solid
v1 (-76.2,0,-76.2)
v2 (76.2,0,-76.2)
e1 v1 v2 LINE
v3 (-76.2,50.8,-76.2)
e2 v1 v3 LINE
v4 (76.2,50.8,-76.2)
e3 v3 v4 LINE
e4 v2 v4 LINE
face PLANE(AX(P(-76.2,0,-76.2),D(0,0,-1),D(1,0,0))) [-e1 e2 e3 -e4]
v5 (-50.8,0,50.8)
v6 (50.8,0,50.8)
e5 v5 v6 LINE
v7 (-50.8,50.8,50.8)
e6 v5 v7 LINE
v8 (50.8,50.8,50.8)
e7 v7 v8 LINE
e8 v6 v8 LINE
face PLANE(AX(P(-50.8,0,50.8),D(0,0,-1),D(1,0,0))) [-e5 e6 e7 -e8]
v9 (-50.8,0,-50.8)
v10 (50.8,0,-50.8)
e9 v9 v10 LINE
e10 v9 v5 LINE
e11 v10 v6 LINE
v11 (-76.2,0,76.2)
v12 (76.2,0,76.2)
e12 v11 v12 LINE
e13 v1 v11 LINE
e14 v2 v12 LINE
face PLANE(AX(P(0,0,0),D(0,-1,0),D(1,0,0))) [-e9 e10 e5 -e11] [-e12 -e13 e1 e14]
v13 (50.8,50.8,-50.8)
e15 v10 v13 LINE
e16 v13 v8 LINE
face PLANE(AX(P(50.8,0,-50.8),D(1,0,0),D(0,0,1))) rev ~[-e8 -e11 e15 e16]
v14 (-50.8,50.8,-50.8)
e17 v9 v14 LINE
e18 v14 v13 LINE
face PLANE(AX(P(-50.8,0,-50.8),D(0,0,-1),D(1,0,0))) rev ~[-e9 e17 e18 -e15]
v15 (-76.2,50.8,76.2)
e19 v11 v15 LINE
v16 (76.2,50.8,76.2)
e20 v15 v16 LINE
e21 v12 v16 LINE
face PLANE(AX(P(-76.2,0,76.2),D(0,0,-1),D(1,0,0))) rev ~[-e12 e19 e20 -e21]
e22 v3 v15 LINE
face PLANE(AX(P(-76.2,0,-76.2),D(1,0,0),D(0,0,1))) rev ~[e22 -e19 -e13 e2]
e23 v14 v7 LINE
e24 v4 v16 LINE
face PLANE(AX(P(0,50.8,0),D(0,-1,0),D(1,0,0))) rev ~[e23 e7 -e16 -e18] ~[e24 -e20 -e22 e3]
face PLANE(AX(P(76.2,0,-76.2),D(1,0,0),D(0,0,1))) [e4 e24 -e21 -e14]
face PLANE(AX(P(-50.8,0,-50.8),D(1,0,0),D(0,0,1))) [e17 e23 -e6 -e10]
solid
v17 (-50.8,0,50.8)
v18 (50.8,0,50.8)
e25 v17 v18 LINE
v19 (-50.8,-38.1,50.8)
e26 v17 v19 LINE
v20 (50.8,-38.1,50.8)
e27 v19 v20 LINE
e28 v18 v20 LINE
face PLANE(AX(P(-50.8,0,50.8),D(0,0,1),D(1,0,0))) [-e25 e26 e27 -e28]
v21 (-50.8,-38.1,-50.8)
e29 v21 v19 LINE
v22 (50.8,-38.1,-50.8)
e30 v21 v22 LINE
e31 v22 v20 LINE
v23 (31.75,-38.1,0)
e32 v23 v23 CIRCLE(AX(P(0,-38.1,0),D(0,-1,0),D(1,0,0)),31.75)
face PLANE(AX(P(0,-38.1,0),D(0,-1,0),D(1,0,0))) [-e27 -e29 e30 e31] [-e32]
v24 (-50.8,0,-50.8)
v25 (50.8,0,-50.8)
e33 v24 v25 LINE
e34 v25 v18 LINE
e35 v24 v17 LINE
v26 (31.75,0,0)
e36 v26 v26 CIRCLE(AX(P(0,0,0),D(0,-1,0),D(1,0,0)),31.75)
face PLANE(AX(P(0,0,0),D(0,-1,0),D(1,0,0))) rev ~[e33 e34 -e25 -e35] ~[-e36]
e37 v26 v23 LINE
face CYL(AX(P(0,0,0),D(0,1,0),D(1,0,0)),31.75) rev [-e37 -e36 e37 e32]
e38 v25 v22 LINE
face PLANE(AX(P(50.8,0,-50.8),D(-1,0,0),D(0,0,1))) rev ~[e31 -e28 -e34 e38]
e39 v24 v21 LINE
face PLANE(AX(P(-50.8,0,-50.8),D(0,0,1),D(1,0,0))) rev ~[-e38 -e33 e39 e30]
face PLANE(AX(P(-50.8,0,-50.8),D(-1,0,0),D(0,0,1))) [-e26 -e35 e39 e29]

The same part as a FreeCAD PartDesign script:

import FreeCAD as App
import Part
import Sketcher
from FreeCAD import Vector
Q = App.Units.Quantity


def add_polygon(sketch, points):
    """Adds a closed chain of lines whose ends are joined by coincident constraints."""
    first, n = sketch.GeometryCount, len(points)
    for a, b in zip(points, points[1:] + points[:1]):
        sketch.addGeometry(Part.LineSegment(App.Vector(*a, 0), App.Vector(*b, 0)), False)
    for i in range(n):
        sketch.addConstraint(Sketcher.Constraint("Coincident", first + i, 2, first + (i + 1) % n, 1))

doc = App.newDocument("Part")
body = doc.addObject("PartDesign::Body", "Body")

# Sketch on XZ plane
sketch1 = doc.addObject("Sketcher::SketchObject", "Sketch")
body.addObject(sketch1)
sketch1.AttachmentSupport = (doc.XZ_Plane, [""])
sketch1.MapMode = "FlatFace"
add_polygon(sketch1, [(-50.8, 50.8), (-50.8, -50.8), (50.8, -50.8), (50.8, 50.8)])  # lines 0-3
sketch1.addGeometry(Part.Circle(Vector(0, 0, 0), Vector(0, 0, 1), 31.75), False)  # 4
sketch1.addConstraint([
    Sketcher.Constraint("Vertical", 0),
    Sketcher.Constraint("Horizontal", 1),
    Sketcher.Constraint("Vertical", 2),
    Sketcher.Constraint("Horizontal", 3),
    Sketcher.Constraint("Coincident", 4, 3, -1, 1),
    Sketcher.Constraint("Symmetric", 0, 2, 2, 2, -1, 1),
    Sketcher.Constraint("Equal", 3, 0),
    Sketcher.Constraint("Diameter", 4, Q("2.5 in")),
    Sketcher.Constraint("DistanceX", 1, 1, 1, 2, Q("4 in")),
])
pad1 = doc.addObject("PartDesign::Pad", "Pad")
body.addObject(pad1)
pad1.Profile = sketch1
pad1.Length = Q("1.5 in")
body2 = doc.addObject("PartDesign::Body", "Body001")

# Sketch on XZ plane
sketch2 = doc.addObject("Sketcher::SketchObject", "Sketch001")
body2.addObject(sketch2)
sketch2.AttachmentSupport = (doc.getObject("XZ_Plane001"), [""])
sketch2.MapMode = "FlatFace"
add_polygon(sketch2, [(-76.2, 76.2), (-76.2, -76.2), (76.2, -76.2), (76.2, 76.2)])  # lines 0-3
add_polygon(sketch2, [(50.8, -50.8), (-50.8, -50.8), (-50.8, 50.8), (50.8, 50.8)])  # lines 4-7
sketch2.addConstraint([
    Sketcher.Constraint("Vertical", 0),
    Sketcher.Constraint("Horizontal", 1),
    Sketcher.Constraint("Vertical", 2),
    Sketcher.Constraint("Horizontal", 3),
    Sketcher.Constraint("Horizontal", 4),
    Sketcher.Constraint("Vertical", 5),
    Sketcher.Constraint("Horizontal", 6),
    Sketcher.Constraint("Vertical", 7),
    Sketcher.Constraint("Symmetric", 0, 2, 2, 2, -1, 1),
    Sketcher.Constraint("Symmetric", 4, 2, 6, 2, -1, 1),
    Sketcher.Constraint("Equal", 3, 0),
    Sketcher.Constraint("Equal", 6, 5),
    Sketcher.Constraint("DistanceX", 1, 1, 1, 2, Q("6 in")),
    Sketcher.Constraint("DistanceX", 4, 2, 4, 1, Q("4 in")),
])
pad2 = doc.addObject("PartDesign::Pad", "Pad001")
body2.addObject(pad2)
pad2.Profile = sketch2
pad2.Length = Q("2 in")
pad2.Reversed = True

doc.recompute()
